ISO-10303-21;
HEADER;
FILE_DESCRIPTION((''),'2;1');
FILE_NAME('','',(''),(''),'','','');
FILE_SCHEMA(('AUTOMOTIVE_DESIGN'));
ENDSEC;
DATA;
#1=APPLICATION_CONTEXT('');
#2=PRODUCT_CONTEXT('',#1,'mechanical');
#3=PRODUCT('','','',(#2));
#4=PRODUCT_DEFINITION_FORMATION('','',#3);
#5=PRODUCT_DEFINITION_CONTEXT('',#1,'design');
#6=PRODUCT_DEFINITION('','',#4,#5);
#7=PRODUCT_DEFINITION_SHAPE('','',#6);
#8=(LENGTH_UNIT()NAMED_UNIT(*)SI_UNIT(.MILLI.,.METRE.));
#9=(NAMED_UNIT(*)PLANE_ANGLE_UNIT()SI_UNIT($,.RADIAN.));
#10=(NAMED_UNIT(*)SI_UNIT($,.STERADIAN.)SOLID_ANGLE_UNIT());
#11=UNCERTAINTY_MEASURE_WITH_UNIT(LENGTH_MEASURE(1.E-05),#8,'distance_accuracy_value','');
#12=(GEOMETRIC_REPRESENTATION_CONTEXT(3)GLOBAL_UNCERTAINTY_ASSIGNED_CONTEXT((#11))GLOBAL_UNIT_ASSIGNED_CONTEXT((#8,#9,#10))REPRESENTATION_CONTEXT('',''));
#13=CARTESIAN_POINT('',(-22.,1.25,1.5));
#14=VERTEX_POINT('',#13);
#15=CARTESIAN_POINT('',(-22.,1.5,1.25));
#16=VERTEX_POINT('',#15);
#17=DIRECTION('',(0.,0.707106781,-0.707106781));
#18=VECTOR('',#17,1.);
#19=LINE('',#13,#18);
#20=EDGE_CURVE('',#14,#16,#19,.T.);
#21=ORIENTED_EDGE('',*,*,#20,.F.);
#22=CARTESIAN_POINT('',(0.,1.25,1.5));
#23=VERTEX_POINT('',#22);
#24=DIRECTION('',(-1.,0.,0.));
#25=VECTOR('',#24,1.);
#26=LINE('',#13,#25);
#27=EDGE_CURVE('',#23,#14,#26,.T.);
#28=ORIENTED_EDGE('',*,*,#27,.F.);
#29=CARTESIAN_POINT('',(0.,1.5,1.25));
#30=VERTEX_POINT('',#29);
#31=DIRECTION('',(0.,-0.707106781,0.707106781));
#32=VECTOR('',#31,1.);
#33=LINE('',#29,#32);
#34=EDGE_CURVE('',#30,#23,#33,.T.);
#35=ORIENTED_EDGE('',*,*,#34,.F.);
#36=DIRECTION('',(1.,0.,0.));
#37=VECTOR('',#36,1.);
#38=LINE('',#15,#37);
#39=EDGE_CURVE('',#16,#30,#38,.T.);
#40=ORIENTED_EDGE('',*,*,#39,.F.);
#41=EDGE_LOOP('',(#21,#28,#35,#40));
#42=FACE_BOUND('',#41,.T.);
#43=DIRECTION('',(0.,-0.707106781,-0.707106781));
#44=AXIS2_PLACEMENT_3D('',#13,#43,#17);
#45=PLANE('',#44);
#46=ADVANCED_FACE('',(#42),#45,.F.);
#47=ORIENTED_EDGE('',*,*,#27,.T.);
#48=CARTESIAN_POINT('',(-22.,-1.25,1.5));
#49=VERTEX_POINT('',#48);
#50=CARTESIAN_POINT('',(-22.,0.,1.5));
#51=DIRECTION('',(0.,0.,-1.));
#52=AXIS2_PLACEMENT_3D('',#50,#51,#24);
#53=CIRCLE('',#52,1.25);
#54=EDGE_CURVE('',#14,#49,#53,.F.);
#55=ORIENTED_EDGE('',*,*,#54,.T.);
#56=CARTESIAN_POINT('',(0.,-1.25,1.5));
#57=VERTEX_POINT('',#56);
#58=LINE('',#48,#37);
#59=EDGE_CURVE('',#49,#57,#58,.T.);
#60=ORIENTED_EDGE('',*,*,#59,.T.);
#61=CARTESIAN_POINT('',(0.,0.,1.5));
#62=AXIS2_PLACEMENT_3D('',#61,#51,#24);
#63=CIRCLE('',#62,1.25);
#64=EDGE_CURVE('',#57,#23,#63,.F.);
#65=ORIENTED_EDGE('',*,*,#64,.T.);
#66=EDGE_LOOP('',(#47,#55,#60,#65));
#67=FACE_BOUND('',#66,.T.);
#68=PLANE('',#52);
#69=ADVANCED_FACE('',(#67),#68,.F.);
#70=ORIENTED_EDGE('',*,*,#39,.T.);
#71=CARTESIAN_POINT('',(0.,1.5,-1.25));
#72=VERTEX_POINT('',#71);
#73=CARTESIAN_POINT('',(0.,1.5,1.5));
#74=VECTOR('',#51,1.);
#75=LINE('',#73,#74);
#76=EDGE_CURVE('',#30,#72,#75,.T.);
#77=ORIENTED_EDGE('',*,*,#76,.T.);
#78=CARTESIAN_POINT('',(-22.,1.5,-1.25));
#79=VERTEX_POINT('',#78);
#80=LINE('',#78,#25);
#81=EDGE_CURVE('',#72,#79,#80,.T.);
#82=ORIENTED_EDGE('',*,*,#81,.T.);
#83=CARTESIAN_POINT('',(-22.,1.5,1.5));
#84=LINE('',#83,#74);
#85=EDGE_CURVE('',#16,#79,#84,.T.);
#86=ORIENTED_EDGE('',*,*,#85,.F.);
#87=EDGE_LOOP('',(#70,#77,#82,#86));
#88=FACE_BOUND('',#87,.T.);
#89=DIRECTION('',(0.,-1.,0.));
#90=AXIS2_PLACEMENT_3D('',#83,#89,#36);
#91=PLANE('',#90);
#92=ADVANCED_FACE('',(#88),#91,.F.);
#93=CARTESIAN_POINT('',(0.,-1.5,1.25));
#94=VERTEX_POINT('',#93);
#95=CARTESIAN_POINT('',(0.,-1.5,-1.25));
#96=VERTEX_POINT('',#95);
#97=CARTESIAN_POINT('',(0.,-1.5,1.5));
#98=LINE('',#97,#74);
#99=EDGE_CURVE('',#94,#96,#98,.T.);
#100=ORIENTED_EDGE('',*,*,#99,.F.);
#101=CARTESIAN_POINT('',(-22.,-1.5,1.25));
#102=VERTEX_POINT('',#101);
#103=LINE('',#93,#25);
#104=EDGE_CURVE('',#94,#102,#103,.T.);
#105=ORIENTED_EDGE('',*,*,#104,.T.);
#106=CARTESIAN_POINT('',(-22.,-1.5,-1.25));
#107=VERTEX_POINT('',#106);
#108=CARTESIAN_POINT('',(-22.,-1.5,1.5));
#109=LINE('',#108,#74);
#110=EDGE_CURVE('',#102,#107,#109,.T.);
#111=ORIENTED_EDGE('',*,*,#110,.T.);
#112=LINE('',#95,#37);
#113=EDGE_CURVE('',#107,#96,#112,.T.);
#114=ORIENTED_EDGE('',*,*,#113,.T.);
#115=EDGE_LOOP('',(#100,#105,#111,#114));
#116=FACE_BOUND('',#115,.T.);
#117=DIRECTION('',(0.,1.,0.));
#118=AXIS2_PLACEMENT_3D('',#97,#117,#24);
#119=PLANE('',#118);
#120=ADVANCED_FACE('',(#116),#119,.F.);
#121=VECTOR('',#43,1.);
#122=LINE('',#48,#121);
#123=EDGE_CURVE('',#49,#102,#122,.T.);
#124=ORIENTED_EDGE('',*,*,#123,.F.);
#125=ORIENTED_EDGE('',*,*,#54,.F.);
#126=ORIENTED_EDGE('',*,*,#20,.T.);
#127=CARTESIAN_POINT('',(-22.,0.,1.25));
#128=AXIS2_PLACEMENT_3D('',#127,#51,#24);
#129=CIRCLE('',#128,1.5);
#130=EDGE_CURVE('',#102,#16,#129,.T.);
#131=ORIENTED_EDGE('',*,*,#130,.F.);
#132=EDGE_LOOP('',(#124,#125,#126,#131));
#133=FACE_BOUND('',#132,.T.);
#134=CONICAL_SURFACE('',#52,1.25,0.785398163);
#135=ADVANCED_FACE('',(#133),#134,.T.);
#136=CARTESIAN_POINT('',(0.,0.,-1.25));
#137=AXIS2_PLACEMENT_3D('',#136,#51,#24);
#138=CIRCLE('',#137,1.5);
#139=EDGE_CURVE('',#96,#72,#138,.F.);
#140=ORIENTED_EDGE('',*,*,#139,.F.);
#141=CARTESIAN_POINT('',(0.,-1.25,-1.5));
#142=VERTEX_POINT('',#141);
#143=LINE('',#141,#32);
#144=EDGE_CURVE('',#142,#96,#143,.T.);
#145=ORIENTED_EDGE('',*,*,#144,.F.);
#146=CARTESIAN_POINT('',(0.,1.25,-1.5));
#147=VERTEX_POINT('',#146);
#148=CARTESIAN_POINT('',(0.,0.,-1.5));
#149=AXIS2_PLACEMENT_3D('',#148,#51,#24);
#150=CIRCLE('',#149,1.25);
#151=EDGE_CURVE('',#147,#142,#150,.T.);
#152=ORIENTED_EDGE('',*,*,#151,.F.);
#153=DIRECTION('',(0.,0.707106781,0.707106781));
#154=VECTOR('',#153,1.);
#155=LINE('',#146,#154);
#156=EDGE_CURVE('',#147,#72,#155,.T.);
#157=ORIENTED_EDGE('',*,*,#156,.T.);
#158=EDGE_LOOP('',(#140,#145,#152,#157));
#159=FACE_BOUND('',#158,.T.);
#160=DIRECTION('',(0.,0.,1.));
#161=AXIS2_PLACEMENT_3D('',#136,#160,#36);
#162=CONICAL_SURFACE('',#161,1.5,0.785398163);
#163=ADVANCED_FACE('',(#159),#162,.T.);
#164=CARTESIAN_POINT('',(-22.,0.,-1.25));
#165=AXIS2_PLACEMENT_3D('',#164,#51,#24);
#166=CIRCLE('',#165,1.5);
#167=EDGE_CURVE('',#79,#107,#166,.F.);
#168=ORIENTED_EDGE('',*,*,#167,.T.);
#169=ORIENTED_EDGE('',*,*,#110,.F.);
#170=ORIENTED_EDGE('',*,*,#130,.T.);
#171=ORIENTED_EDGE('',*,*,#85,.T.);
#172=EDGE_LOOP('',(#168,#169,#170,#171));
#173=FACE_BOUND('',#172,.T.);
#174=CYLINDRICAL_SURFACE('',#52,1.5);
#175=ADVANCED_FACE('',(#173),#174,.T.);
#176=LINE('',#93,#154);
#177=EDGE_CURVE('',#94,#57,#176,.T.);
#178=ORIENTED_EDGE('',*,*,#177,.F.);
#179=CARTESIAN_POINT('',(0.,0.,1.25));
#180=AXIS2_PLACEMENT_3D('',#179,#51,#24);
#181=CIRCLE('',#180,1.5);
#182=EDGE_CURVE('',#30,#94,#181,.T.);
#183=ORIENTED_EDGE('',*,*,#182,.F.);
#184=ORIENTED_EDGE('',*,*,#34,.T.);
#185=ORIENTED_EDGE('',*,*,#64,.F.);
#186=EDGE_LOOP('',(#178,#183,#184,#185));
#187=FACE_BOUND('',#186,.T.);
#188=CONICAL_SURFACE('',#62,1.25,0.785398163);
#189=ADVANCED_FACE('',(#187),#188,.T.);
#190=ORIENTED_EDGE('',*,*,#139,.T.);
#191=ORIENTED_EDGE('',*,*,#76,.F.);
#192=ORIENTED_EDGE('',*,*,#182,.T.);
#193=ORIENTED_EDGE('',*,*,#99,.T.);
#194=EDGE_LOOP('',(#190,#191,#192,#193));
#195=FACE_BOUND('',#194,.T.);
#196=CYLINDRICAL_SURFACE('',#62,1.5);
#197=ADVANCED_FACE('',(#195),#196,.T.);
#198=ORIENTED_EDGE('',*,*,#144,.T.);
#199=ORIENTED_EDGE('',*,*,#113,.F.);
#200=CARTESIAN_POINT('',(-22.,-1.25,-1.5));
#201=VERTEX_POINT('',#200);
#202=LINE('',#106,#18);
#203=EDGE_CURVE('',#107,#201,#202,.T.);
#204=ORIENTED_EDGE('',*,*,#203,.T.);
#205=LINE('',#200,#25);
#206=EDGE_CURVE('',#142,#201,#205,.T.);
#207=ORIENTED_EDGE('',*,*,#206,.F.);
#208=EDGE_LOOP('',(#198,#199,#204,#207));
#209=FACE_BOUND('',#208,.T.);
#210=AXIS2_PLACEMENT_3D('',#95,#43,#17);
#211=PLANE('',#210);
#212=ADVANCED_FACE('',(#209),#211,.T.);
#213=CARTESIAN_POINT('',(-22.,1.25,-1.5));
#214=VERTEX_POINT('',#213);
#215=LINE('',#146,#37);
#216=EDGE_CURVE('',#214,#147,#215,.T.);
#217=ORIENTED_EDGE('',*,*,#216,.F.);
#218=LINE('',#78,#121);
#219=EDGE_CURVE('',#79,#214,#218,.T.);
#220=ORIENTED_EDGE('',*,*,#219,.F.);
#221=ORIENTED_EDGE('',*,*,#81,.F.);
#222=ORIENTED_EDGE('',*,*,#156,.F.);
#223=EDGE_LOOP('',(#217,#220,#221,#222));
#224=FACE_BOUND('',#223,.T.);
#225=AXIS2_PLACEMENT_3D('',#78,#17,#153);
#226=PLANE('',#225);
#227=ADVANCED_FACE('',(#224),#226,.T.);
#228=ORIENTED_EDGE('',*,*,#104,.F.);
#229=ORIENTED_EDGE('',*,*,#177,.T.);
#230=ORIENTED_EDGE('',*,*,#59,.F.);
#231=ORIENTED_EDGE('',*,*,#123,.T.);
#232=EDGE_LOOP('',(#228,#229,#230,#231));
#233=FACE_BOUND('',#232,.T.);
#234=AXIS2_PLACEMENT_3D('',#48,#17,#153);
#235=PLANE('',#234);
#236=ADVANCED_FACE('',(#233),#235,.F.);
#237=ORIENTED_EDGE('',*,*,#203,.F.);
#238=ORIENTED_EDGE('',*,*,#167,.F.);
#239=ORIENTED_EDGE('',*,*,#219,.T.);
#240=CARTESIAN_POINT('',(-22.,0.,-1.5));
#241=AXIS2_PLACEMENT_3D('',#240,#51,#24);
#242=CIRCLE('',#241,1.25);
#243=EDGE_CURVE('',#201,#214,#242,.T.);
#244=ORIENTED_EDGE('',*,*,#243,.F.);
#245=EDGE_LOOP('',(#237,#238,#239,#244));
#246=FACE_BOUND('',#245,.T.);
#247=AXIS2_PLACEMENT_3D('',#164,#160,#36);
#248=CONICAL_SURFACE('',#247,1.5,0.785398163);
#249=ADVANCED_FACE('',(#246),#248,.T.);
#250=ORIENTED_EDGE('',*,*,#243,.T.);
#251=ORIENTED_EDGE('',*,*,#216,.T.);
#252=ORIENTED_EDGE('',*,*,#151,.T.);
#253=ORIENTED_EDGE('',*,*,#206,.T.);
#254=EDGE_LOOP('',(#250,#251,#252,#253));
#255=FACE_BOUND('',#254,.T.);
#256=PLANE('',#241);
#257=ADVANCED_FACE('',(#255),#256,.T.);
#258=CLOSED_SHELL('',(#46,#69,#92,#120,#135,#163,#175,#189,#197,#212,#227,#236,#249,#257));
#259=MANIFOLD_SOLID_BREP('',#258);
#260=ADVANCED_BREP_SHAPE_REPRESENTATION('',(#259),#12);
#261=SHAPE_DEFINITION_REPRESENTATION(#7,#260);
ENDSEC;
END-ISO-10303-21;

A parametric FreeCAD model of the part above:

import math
import FreeCAD as App
import Part
import Sketcher

V = App.Vector


def edges_at(feature, points):
    """Names of the edges that pass closest to the given points."""
    edges = feature.Shape.Edges
    near = lambda p: min(range(len(edges)), key=lambda i: edges[i].distToShape(Part.Vertex(*p))[0])
    return sorted({f"Edge{near(p) + 1}" for p in points})

doc = App.newDocument("Part")
params = doc.addObject("Spreadsheet::Sheet", "Params")
for row, (alias, value) in enumerate([
    ("sketch1_radius", "1.5 mm"),
    ("sketch1_width", "22 mm"),
    ("pad1_length", "3 mm"),
    ("chamfer_size", "0.25 mm"),
], start=1):
    params.set(f"A{row}", alias)
    params.set(f"B{row}", "=" + value)
    params.setAlias(f"B{row}", alias)

body = doc.addObject("PartDesign::Body", "Body")

sketch1 = doc.addObject("Sketcher::SketchObject", "Sketch")
body.addObject(sketch1)
sketch1.AttachmentSupport = (doc.XY_Plane, [""])
sketch1.MapMode = "FlatFace"
sketch1.addGeometry(Part.LineSegment(V(0, 1.5, 0), V(-22, 1.5, 0)), False)
sketch1.addGeometry(Part.ArcOfCircle(Part.Circle(V(-22, 0, 0), V(0, 0, 1), 1.5), math.radians(90), math.radians(270)), False)
sketch1.addGeometry(Part.LineSegment(V(-22, -1.5, 0), V(0, -1.5, 0)), False)
sketch1.addGeometry(Part.ArcOfCircle(Part.Circle(V(0, 0, 0), V(0, 0, 1), 1.5), math.radians(-90), math.radians(90)), False)
sketch1.addConstraint(Sketcher.Constraint("Tangent", 0, 2, 1, 1))
sketch1.addConstraint(Sketcher.Constraint("Tangent", 1, 2, 2, 1))
sketch1.addConstraint(Sketcher.Constraint("Tangent", 2, 2, 3, 1))
sketch1.addConstraint(Sketcher.Constraint("Tangent", 3, 2, 0, 1))
sketch1.addConstraint(Sketcher.Constraint("Horizontal", 0))
sketch1.addConstraint(Sketcher.Constraint("Horizontal", 2))
sketch1.addConstraint(Sketcher.Constraint("Coincident", 3, 3, -1, 1))
sketch1.addConstraint(Sketcher.Constraint("Radius", 1, 1.5))
sketch1.addConstraint(Sketcher.Constraint("DistanceX", 0, 2, 0, 1, 22.0))
sketch1.setExpression("Constraints[7]", "Params.sketch1_radius")
sketch1.setExpression("Constraints[8]", "Params.sketch1_width")
pad1 = doc.addObject("PartDesign::Pad", "Pad")
body.addObject(pad1)
pad1.Profile = sketch1
pad1.setExpression("Length", "Params.pad1_length")
pad1.Midplane = True
doc.recompute()

chamfer = doc.addObject("PartDesign::Chamfer", "Chamfer")
body.addObject(chamfer)
chamfer.Base = (pad1, edges_at(pad1, [
    (1.5, 0, 1.5),
    (-11, 1.5, 1.5),
    (-23.5, 0, 1.5),
    (-11, 1.5, -1.5),
    (1.5, 0, -1.5),
    (-11, -1.5, -1.5),
    (-23.5, 0, -1.5),
    (-11, -1.5, 1.5),
]))
chamfer.setExpression("Size", "Params.chamfer_size")

doc.recompute()
